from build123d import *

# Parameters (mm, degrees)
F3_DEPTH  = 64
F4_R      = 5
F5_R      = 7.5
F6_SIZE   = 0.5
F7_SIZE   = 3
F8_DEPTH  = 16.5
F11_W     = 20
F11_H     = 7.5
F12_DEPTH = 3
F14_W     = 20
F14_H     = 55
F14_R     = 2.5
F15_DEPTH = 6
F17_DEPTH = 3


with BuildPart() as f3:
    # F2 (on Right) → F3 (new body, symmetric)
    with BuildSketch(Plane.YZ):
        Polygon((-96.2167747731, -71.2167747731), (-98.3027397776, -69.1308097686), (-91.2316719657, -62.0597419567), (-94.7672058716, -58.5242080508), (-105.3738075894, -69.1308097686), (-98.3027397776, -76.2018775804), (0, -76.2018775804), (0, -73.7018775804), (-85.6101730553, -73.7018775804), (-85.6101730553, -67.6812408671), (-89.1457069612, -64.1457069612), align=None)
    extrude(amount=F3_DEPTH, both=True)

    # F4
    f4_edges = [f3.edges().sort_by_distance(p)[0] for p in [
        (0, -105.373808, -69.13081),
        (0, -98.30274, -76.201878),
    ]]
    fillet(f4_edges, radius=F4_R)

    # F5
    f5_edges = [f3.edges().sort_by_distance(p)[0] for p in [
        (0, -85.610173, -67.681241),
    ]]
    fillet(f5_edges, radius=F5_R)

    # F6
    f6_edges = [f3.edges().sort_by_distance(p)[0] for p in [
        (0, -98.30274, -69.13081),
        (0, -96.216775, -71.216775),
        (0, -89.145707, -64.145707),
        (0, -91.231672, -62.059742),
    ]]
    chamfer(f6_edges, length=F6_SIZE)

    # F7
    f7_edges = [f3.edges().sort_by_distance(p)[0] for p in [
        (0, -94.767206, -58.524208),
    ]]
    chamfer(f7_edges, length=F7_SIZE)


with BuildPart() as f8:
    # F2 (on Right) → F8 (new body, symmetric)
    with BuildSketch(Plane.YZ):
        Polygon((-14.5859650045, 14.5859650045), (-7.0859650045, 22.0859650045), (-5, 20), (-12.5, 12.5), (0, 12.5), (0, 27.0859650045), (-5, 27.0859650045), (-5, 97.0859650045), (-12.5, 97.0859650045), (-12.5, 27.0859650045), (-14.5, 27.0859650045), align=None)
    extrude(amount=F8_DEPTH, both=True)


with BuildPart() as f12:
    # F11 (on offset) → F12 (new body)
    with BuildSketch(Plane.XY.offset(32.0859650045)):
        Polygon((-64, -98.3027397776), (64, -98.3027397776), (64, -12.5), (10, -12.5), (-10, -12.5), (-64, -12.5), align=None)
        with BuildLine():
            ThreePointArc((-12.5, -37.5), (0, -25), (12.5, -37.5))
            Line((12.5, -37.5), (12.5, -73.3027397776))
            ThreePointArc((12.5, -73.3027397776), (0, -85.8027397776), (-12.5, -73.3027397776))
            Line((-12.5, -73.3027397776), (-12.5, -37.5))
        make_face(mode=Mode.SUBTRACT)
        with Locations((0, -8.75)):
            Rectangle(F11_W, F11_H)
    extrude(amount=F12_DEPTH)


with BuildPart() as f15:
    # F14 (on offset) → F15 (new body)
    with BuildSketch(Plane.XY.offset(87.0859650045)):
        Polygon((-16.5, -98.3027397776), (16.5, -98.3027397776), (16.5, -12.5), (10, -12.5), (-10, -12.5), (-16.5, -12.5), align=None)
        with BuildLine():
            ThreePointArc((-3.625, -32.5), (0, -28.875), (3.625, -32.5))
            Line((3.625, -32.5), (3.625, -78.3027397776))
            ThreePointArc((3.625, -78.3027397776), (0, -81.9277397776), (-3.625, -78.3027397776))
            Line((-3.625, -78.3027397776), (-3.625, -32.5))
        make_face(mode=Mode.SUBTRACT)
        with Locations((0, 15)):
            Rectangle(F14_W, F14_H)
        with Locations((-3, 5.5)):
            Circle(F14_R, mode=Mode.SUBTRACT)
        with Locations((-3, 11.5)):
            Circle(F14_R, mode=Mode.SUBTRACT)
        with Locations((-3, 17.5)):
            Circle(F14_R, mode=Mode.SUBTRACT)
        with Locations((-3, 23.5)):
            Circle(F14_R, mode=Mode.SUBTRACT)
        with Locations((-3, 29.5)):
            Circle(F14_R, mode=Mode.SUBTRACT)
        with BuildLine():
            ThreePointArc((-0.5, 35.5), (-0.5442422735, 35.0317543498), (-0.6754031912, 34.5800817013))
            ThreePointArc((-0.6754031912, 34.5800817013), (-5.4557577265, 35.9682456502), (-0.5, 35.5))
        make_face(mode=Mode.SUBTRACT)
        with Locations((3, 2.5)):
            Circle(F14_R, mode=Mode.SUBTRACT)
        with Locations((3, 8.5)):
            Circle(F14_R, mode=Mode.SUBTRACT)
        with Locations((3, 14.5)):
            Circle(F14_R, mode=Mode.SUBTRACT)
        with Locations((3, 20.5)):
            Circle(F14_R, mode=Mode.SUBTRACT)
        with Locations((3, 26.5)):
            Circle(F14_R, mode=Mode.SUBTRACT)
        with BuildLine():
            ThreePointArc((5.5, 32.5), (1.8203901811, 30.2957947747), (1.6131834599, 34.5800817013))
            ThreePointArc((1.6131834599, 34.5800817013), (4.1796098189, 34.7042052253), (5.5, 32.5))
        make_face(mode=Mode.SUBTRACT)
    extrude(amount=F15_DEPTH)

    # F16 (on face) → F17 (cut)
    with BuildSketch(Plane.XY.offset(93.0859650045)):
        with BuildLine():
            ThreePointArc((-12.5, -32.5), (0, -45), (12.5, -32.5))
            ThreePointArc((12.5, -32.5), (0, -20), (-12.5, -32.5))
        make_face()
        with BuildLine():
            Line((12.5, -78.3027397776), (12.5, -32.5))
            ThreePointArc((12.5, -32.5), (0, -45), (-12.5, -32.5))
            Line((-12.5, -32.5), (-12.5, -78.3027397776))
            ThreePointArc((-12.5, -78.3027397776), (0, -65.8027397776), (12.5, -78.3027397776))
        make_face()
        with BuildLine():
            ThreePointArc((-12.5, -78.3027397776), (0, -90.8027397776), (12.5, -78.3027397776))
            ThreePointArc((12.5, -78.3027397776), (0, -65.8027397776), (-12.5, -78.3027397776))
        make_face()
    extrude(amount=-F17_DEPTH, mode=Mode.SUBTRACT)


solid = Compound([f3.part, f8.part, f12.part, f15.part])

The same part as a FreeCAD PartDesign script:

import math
import FreeCAD as App
import Part
import Sketcher
from FreeCAD import Vector
Q = App.Units.Quantity


def edges_at(feature, points):
    """Names of the edges that pass closest to the given points."""
    edges = feature.Shape.Edges
    near = lambda p: min(range(len(edges)), key=lambda i: edges[i].distToShape(Part.Vertex(*p))[0])
    return sorted({f"Edge{near(p) + 1}" for p in points})


def add_polygon(sketch, points):
    """Adds a closed chain of lines whose ends are joined by coincident constraints."""
    first, n = sketch.GeometryCount, len(points)
    for a, b in zip(points, points[1:] + points[:1]):
        sketch.addGeometry(Part.LineSegment(App.Vector(*a, 0), App.Vector(*b, 0)), False)
    for i in range(n):
        sketch.addConstraint(Sketcher.Constraint("Coincident", first + i, 2, first + (i + 1) % n, 1))

doc = App.newDocument("Part")
body = doc.addObject("PartDesign::Body", "Body")

sketch1 = body.newObject("Sketcher::SketchObject", "Sketch")
sketch1.AttachmentSupport = (doc.getObject("YZ_Plane"), [""])
sketch1.MapMode = "FlatFace"
add_polygon(sketch1, [(-96.216775, -71.216775), (-98.30274, -69.13081), (-91.231672, -62.059742), (-94.767206, -58.524208), (-105.373808, -69.13081), (-98.30274, -76.201878), (0, -76.201878), (0, -73.701878), (-85.610173, -73.701878), (-85.610173, -67.681241), (-89.145707, -64.145707)])
sketch1.addConstraint(Sketcher.Constraint("Horizontal", 5))
sketch1.addConstraint(Sketcher.Constraint("Vertical", 6))
sketch1.addConstraint(Sketcher.Constraint("Horizontal", 7))
sketch1.addConstraint(Sketcher.Constraint("Vertical", 8))
sketch1.addConstraint(Sketcher.Constraint("PointOnObject", 5, 2, -2))
sketch1.addConstraint(Sketcher.Constraint("Perpendicular", 0, 1))
sketch1.addConstraint(Sketcher.Constraint("Perpendicular", 1, 2))
sketch1.addConstraint(Sketcher.Constraint("Perpendicular", 2, 3))
sketch1.addConstraint(Sketcher.Constraint("Perpendicular", 3, 4))
sketch1.addConstraint(Sketcher.Constraint("Parallel", 4, 9))
sketch1.addConstraint(Sketcher.Constraint("Perpendicular", 9, 10))
sketch1.addConstraint(Sketcher.Constraint("Horizontal", 0, 2, 3, 2))
sketch1.addConstraint(Sketcher.Constraint("Vertical", 0, 2, 4, 2))
sketch1.addConstraint(Sketcher.Constraint("Equal", 1, 4))
sketch1.addConstraint(Sketcher.Constraint("Equal", 2, 9))
sketch1.addConstraint(Sketcher.Constraint("Equal", 4, 10))
sketch1.addConstraint(Sketcher.Constraint("Angle", 0, Q("135 deg")))
sketch1.addConstraint(Sketcher.Constraint("Distance", 1, Q("10 mm")))
sketch1.addConstraint(Sketcher.Constraint("DistanceY", 6, 1, 6, 2, Q("2.5 mm")))
sketch1.addConstraint(Sketcher.Constraint("Distance", 0, Q("2.95 mm")))
sketch1.addConstraint(Sketcher.Constraint("DistanceX", 5, 1, 5, 2, Q("98.30274 mm")))
sketch1.addConstraint(Sketcher.Constraint("DistanceY", 0, 2, -1, 1, Q("69.13081 mm")))
pad1 = body.newObject("PartDesign::Pad", "Pad")
pad1.Profile = sketch1
pad1.Length = 128
pad1.Midplane = True
doc.recompute()

fillet = body.newObject("PartDesign::Fillet", "Fillet")
fillet.Base = (pad1, edges_at(pad1, [(0, -105.374, -69.131), (0, -98.303, -76.202)]))
fillet.Radius = 5
doc.recompute()

fillet2 = body.newObject("PartDesign::Fillet", "Fillet001")
fillet2.Base = (fillet, edges_at(fillet, [(0, -85.61, -67.681)]))
fillet2.Radius = 7.5
doc.recompute()

chamfer = body.newObject("PartDesign::Chamfer", "Chamfer")
chamfer.Base = (fillet2, edges_at(fillet2, [
    (0, -98.303, -69.131),
    (0, -96.217, -71.217),
    (0, -89.146, -64.146),
    (0, -91.232, -62.06),
]))
chamfer.Size = 0.5
doc.recompute()

chamfer2 = body.newObject("PartDesign::Chamfer", "Chamfer001")
chamfer2.Base = (chamfer, edges_at(chamfer, [(0, -94.767, -58.524)]))
chamfer2.Size = 3
body2 = doc.addObject("PartDesign::Body", "Body001")

sketch2 = body2.newObject("Sketcher::SketchObject", "Sketch001")
sketch2.AttachmentSupport = (doc.getObject("YZ_Plane001"), [""])
sketch2.MapMode = "FlatFace"
add_polygon(sketch2, [(-14.585965, 14.585965), (-7.085965, 22.085965), (-5, 20), (-12.5, 12.5), (0, 12.5), (0, 27.085965), (-5, 27.085965), (-5, 97.085965), (-12.5, 97.085965), (-12.5, 27.085965), (-14.5, 27.085965)])
sketch2.addConstraint(Sketcher.Constraint("Horizontal", 3))
sketch2.addConstraint(Sketcher.Constraint("Vertical", 4))
sketch2.addConstraint(Sketcher.Constraint("Horizontal", 5))
sketch2.addConstraint(Sketcher.Constraint("Vertical", 6))
sketch2.addConstraint(Sketcher.Constraint("Horizontal", 7))
sketch2.addConstraint(Sketcher.Constraint("Vertical", 8))
sketch2.addConstraint(Sketcher.Constraint("Horizontal", 9))
sketch2.addConstraint(Sketcher.Constraint("PointOnObject", 3, 2, -2))
sketch2.addConstraint(Sketcher.Constraint("Perpendicular", 0, 1))
sketch2.addConstraint(Sketcher.Constraint("Perpendicular", 1, 2))
sketch2.addConstraint(Sketcher.Constraint("Horizontal", 5, 2, 8, 2))
sketch2.addConstraint(Sketcher.Constraint("Vertical", 1, 2, 5, 2))
sketch2.addConstraint(Sketcher.Constraint("Vertical", 2, 2, 7, 2))
sketch2.addConstraint(Sketcher.Constraint("Equal", 0, 2))
sketch2.addConstraint(Sketcher.Constraint("DistanceX", 5, 2, 5, 1, Q("5 mm")))
sketch2.addConstraint(Sketcher.Constraint("DistanceX", 9, 2, 9, 1, Q("2 mm")))
sketch2.addConstraint(Sketcher.Constraint("DistanceY", 6, 1, 6, 2, Q("70 mm")))
sketch2.addConstraint(Sketcher.Constraint("Angle", 0, Q("45 deg")))
sketch2.addConstraint(Sketcher.Constraint("DistanceX", 3, 1, 3, 2, Q("12.5 mm")))
sketch2.addConstraint(Sketcher.Constraint("DistanceY", -1, 1, 1, 2, Q("20 mm")))
sketch2.addConstraint(Sketcher.Constraint("DistanceY", 0, 2, 4, 2, Q("5 mm")))
sketch2.addConstraint(Sketcher.Constraint("Distance", 1, Q("2.95 mm")))
pad2 = body2.newObject("PartDesign::Pad", "Pad001")
pad2.Profile = sketch2
pad2.Length = 33
pad2.Midplane = True
body3 = doc.addObject("PartDesign::Body", "Body002")

sketch3 = body3.newObject("Sketcher::SketchObject", "Sketch002")
sketch3.AttachmentSupport = (doc.getObject("XY_Plane002"), [""])
sketch3.MapMode = "FlatFace"
sketch3.AttachmentOffset = App.Placement(Vector(0, 0, 32.085965), App.Rotation())
add_polygon(sketch3, [(-64, -98.30274), (64, -98.30274), (64, -12.5), (10, -12.5), (10, -5), (-10, -5), (-10, -12.5), (-64, -12.5)])
sketch3.addGeometry(Part.LineSegment(Vector(-12.5, -73.30274, 0), Vector(-12.5, -37.5, 0)), False)
sketch3.addGeometry(Part.ArcOfCircle(Part.Circle(Vector(0, -37.5, 0), Vector(0, 0, 1), 12.5), math.radians(0), math.radians(180)), False)
sketch3.addGeometry(Part.LineSegment(Vector(12.5, -37.5, 0), Vector(12.5, -73.30274, 0)), False)
sketch3.addGeometry(Part.ArcOfCircle(Part.Circle(Vector(0, -73.30274, 0), Vector(0, 0, 1), 12.5), math.radians(180), math.radians(360)), False)
sketch3.addConstraint(Sketcher.Constraint("Tangent", 8, 2, 9, 2))
sketch3.addConstraint(Sketcher.Constraint("Tangent", 9, 1, 10, 1))
sketch3.addConstraint(Sketcher.Constraint("Tangent", 10, 2, 11, 2))
sketch3.addConstraint(Sketcher.Constraint("Tangent", 11, 1, 8, 1))
sketch3.addConstraint(Sketcher.Constraint("Horizontal", 0))
sketch3.addConstraint(Sketcher.Constraint("Vertical", 1))
sketch3.addConstraint(Sketcher.Constraint("Horizontal", 2))
sketch3.addConstraint(Sketcher.Constraint("Vertical", 3))
sketch3.addConstraint(Sketcher.Constraint("Horizontal", 4))
sketch3.addConstraint(Sketcher.Constraint("Vertical", 5))
sketch3.addConstraint(Sketcher.Constraint("Horizontal", 6))
sketch3.addConstraint(Sketcher.Constraint("Vertical", 7))
sketch3.addConstraint(Sketcher.Constraint("Vertical", 8))
sketch3.addConstraint(Sketcher.Constraint("Vertical", 10))
sketch3.addConstraint(Sketcher.Constraint("Symmetric", 2, 2, 5, 2, -2))
sketch3.addConstraint(Sketcher.Constraint("PointOnObject", 9, 3, -2))
sketch3.addConstraint(Sketcher.Constraint("Equal", 2, 6))
sketch3.addConstraint(Sketcher.Constraint("Radius", 9, Q("12.5 mm")))
sketch3.addConstraint(Sketcher.Constraint("DistanceX", 0, 1, 0, 2, Q("128 mm")))
sketch3.addConstraint(Sketcher.Constraint("DistanceX", 2, 2, 2, 1, Q("54 mm")))
sketch3.addConstraint(Sketcher.Constraint("DistanceY", 3, 1, 3, 2, Q("7.5 mm")))
sketch3.addConstraint(Sketcher.Constraint("DistanceY", 3, 2, -1, 1, Q("5 mm")))
sketch3.addConstraint(Sketcher.Constraint("DistanceY", 0, 2, 11, 3, Q("25 mm")))
sketch3.addConstraint(Sketcher.Constraint("DistanceY", 9, 3, 1, 2, Q("25 mm")))
sketch3.addConstraint(Sketcher.Constraint("DistanceY", 1, 1, 1, 2, Q("85.80274 mm")))
pad3 = body3.newObject("PartDesign::Pad", "Pad002")
pad3.Profile = sketch3
pad3.Length = 3
body4 = doc.addObject("PartDesign::Body", "Body003")

sketch4 = body4.newObject("Sketcher::SketchObject", "Sketch003")
sketch4.AttachmentSupport = (doc.getObject("XY_Plane003"), [""])
sketch4.MapMode = "FlatFace"
sketch4.AttachmentOffset = App.Placement(Vector(0, 0, 87.085965), App.Rotation())
add_polygon(sketch4, [(-16.5, -98.30274), (16.5, -98.30274), (16.5, -12.5), (10, -12.5), (10, 42.5), (-10, 42.5), (-10, -12.5), (-16.5, -12.5)])
sketch4.addGeometry(Part.LineSegment(Vector(-3.625, -78.30274, 0), Vector(-3.625, -32.5, 0)), False)
sketch4.addGeometry(Part.ArcOfCircle(Part.Circle(Vector(0, -32.5, 0), Vector(0, 0, 1), 3.625), math.radians(0), math.radians(180)), False)
sketch4.addGeometry(Part.LineSegment(Vector(3.625, -32.5, 0), Vector(3.625, -78.30274, 0)), False)
sketch4.addGeometry(Part.ArcOfCircle(Part.Circle(Vector(0, -78.30274, 0), Vector(0, 0, 1), 3.625), math.radians(180), math.radians(360)), False)
sketch4.addGeometry(Part.Circle(Vector(-3, 5.5, 0), Vector(0, 0, 1), 2.5), False)
sketch4.addGeometry(Part.Circle(Vector(-3, 11.5, 0), Vector(0, 0, 1), 2.5), False)
sketch4.addGeometry(Part.Circle(Vector(-3, 17.5, 0), Vector(0, 0, 1), 2.5), False)
sketch4.addGeometry(Part.Circle(Vector(-3, 23.5, 0), Vector(0, 0, 1), 2.5), False)
sketch4.addGeometry(Part.Circle(Vector(-3, 29.5, 0), Vector(0, 0, 1), 2.5), False)
sketch4.addGeometry(Part.ArcOfCircle(Part.Circle(Vector(-3, 35.5, 0), Vector(0, 0, 1), 2.5), math.radians(0), math.radians(338.409689)), False)
sketch4.addGeometry(Part.ArcOfCircle(Part.Circle(Vector(-3, 35.5, 0), Vector(0, 0, 1), 2.5), math.radians(-21.590311), math.radians(0)), False)
sketch4.addGeometry(Part.Circle(Vector(3, 2.5, 0), Vector(0, 0, 1), 2.5), False)
sketch4.addGeometry(Part.Circle(Vector(3, 8.5, 0), Vector(0, 0, 1), 2.5), False)
sketch4.addGeometry(Part.Circle(Vector(3, 14.5, 0), Vector(0, 0, 1), 2.5), False)
sketch4.addGeometry(Part.Circle(Vector(3, 20.5, 0), Vector(0, 0, 1), 2.5), False)
sketch4.addGeometry(Part.Circle(Vector(3, 26.5, 0), Vector(0, 0, 1), 2.5), False)
sketch4.addGeometry(Part.ArcOfCircle(Part.Circle(Vector(3, 32.5, 0), Vector(0, 0, 1), 2.5), math.radians(0), math.radians(123.691887)), False)
sketch4.addGeometry(Part.ArcOfCircle(Part.Circle(Vector(3, 32.5, 0), Vector(0, 0, 1), 2.5), math.radians(123.691887), math.radians(360)), False)
sketch4.addConstraint(Sketcher.Constraint("Tangent", 8, 2, 9, 2))
sketch4.addConstraint(Sketcher.Constraint("Tangent", 9, 1, 10, 1))
sketch4.addConstraint(Sketcher.Constraint("Tangent", 10, 2, 11, 2))
sketch4.addConstraint(Sketcher.Constraint("Tangent", 11, 1, 8, 1))
sketch4.addConstraint(Sketcher.Constraint("Tangent", 17, 1, 18, 2))
sketch4.addConstraint(Sketcher.Constraint("Coincident", 18, 1, 17, 2))
sketch4.addConstraint(Sketcher.Constraint("Tangent", 24, 1, 25, 2))
sketch4.addConstraint(Sketcher.Constraint("Coincident", 25, 1, 24, 2))
sketch4.addConstraint(Sketcher.Constraint("Horizontal", 0))
sketch4.addConstraint(Sketcher.Constraint("Vertical", 1))
sketch4.addConstraint(Sketcher.Constraint("Horizontal", 2))
sketch4.addConstraint(Sketcher.Constraint("Vertical", 3))
sketch4.addConstraint(Sketcher.Constraint("Horizontal", 4))
sketch4.addConstraint(Sketcher.Constraint("Vertical", 5))
sketch4.addConstraint(Sketcher.Constraint("Horizontal", 6))
sketch4.addConstraint(Sketcher.Constraint("Vertical", 7))
sketch4.addConstraint(Sketcher.Constraint("Vertical", 8))
sketch4.addConstraint(Sketcher.Constraint("Vertical", 10))
sketch4.addConstraint(Sketcher.Constraint("Equal", 12, 13))
sketch4.addConstraint(Sketcher.Constraint("Equal", 13, 14))
sketch4.addConstraint(Sketcher.Constraint("Equal", 14, 15))
sketch4.addConstraint(Sketcher.Constraint("Equal", 15, 16))
sketch4.addConstraint(Sketcher.Constraint("Equal", 16, 17))
sketch4.addConstraint(Sketcher.Constraint("Equal", 18, 19))
sketch4.addConstraint(Sketcher.Constraint("Equal", 19, 20))
sketch4.addConstraint(Sketcher.Constraint("Equal", 20, 21))
sketch4.addConstraint(Sketcher.Constraint("Equal", 21, 22))
sketch4.addConstraint(Sketcher.Constraint("Equal", 22, 23))
sketch4.addConstraint(Sketcher.Constraint("Equal", 23, 24))
sketch4.addConstraint(Sketcher.Constraint("Symmetric", 2, 2, 5, 2, -2))
sketch4.addConstraint(Sketcher.Constraint("PointOnObject", 9, 3, -2))
sketch4.addConstraint(Sketcher.Constraint("Horizontal", 18, 3, 17, 1))
sketch4.addConstraint(Sketcher.Constraint("Horizontal", 25, 3, 24, 1))
sketch4.addConstraint(Sketcher.Constraint("Horizontal", 18, 1, 25, 1))
sketch4.addConstraint(Sketcher.Constraint("Vertical", 12, 3, 13, 3))
sketch4.addConstraint(Sketcher.Constraint("Vertical", 13, 3, 14, 3))
sketch4.addConstraint(Sketcher.Constraint("Vertical", 14, 3, 15, 3))
sketch4.addConstraint(Sketcher.Constraint("Vertical", 15, 3, 16, 3))
sketch4.addConstraint(Sketcher.Constraint("Vertical", 16, 3, 17, 3))
sketch4.addConstraint(Sketcher.Constraint("Vertical", 19, 3, 20, 3))
sketch4.addConstraint(Sketcher.Constraint("Vertical", 20, 3, 21, 3))
sketch4.addConstraint(Sketcher.Constraint("Vertical", 21, 3, 22, 3))
sketch4.addConstraint(Sketcher.Constraint("Vertical", 22, 3, 23, 3))
sketch4.addConstraint(Sketcher.Constraint("Vertical", 23, 3, 24, 3))
sketch4.addConstraint(Sketcher.Constraint("Equal", 2, 6))
sketch4.addConstraint(Sketcher.Constraint("Diameter", 12, Q("5 mm")))
sketch4.addConstraint(Sketcher.Constraint("DistanceX", 0, 1, 0, 2, Q("33 mm")))
sketch4.addConstraint(Sketcher.Constraint("DistanceX", 4, 2, 4, 1, Q("20 mm")))
sketch4.addConstraint(Sketcher.Constraint("DistanceY", 3, 1, 3, 2, Q("55 mm")))
sketch4.addConstraint(Sketcher.Constraint("DistanceX", 12, 3, -1, 1, Q("3 mm")))
sketch4.addConstraint(Sketcher.Constraint("DistanceX", -1, 1, 19, 3, Q("3 mm")))
sketch4.addConstraint(Sketcher.Constraint("Radius", 9, Q("3.625 mm")))
sketch4.addConstraint(Sketcher.Constraint("DistanceY", 9, 3, 12, 3, Q("38 mm")))
sketch4.addConstraint(Sketcher.Constraint("DistanceY", 12, 3, 13, 3, Q("6 mm")))
sketch4.addConstraint(Sketcher.Constraint("DistanceY", 13, 3, 14, 3, Q("6 mm")))
sketch4.addConstraint(Sketcher.Constraint("DistanceY", 14, 3, 15, 3, Q("6 mm")))
sketch4.addConstraint(Sketcher.Constraint("DistanceY", 15, 3, 16, 3, Q("6 mm")))
sketch4.addConstraint(Sketcher.Constraint("DistanceY", 16, 3, 17, 3, Q("6 mm")))
sketch4.addConstraint(Sketcher.Constraint("DistanceY", 19, 3, 12, 3, Q("3 mm")))
sketch4.addConstraint(Sketcher.Constraint("DistanceY", 19, 3, 20, 3, Q("6 mm")))
sketch4.addConstraint(Sketcher.Constraint("DistanceY", 20, 3, 21, 3, Q("6 mm")))
sketch4.addConstraint(Sketcher.Constraint("DistanceY", 21, 3, 22, 3, Q("6 mm")))
sketch4.addConstraint(Sketcher.Constraint("DistanceY", 22, 3, 23, 3, Q("6 mm")))
sketch4.addConstraint(Sketcher.Constraint("DistanceY", 23, 3, 24, 3, Q("6 mm")))
sketch4.addConstraint(Sketcher.Constraint("DistanceY", 0, 2, 11, 3, Q("20 mm")))
sketch4.addConstraint(Sketcher.Constraint("DistanceY", 1, 2, 19, 3, Q("15 mm")))
sketch4.addConstraint(Sketcher.Constraint("DistanceY", 9, 3, -1, 1, Q("32.5 mm")))
sketch4.addConstraint(Sketcher.Constraint("DistanceY", 1, 1, 1, 2, Q("85.80274 mm")))
sketch4.addConstraint(Sketcher.Constraint("DistanceY", -1, 1, 18, 1, Q("34.580082 mm")))
pad4 = body4.newObject("PartDesign::Pad", "Pad003")
pad4.Profile = sketch4
pad4.Length = 6

sketch5 = body4.newObject("Sketcher::SketchObject", "Sketch004")
sketch5.AttachmentSupport = (doc.getObject("XY_Plane003"), [""])
sketch5.MapMode = "FlatFace"
sketch5.AttachmentOffset = App.Placement(Vector(0, 0, 93.085965), App.Rotation())
sketch5.addGeometry(Part.ArcOfCircle(Part.Circle(Vector(0, -32.5, 0), Vector(0, 0, 1), 12.5), math.radians(0), math.radians(180)), False)
sketch5.addGeometry(Part.LineSegment(Vector(-12.5, -32.5, 0), Vector(-12.5, -78.30274, 0)), False)
sketch5.addGeometry(Part.ArcOfCircle(Part.Circle(Vector(0, -78.30274, 0), Vector(0, 0, 1), 12.5), math.radians(180), math.radians(360)), False)
sketch5.addGeometry(Part.LineSegment(Vector(12.5, -78.30274, 0), Vector(12.5, -32.5, 0)), False)
sketch5.addConstraint(Sketcher.Constraint("Tangent", 0, 2, 1, 1))
sketch5.addConstraint(Sketcher.Constraint("Tangent", 1, 2, 2, 1))
sketch5.addConstraint(Sketcher.Constraint("Tangent", 2, 2, 3, 1))
sketch5.addConstraint(Sketcher.Constraint("Tangent", 3, 2, 0, 1))
sketch5.addConstraint(Sketcher.Constraint("Vertical", 1))
sketch5.addConstraint(Sketcher.Constraint("Vertical", 3))
sketch5.addConstraint(Sketcher.Constraint("PointOnObject", 0, 3, -2))
sketch5.addConstraint(Sketcher.Constraint("Radius", 0, Q("12.5 mm")))
sketch5.addConstraint(Sketcher.Constraint("DistanceY", 0, 3, -1, 1, Q("32.5 mm")))
sketch5.addConstraint(Sketcher.Constraint("DistanceY", 1, 2, 1, 1, Q("45.80274 mm")))
pocket1 = body4.newObject("PartDesign::Pocket", "Pocket")
pocket1.Profile = sketch5
pocket1.Length = 3

doc.recompute()
